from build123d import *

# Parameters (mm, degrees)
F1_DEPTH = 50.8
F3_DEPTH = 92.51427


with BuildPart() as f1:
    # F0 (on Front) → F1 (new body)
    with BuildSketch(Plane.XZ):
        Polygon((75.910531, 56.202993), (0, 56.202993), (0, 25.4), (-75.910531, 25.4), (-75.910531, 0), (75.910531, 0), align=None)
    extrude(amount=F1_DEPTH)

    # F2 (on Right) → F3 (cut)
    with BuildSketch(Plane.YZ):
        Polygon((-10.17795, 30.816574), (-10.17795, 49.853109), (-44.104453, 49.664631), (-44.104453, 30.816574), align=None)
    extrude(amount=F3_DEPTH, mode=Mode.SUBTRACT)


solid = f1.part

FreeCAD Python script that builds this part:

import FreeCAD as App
import Part
import Sketcher
Q = App.Units.Quantity


def add_polygon(sketch, points):
    """Adds a closed chain of lines whose ends are joined by coincident constraints."""
    first, n = sketch.GeometryCount, len(points)
    for a, b in zip(points, points[1:] + points[:1]):
        sketch.addGeometry(Part.LineSegment(App.Vector(*a, 0), App.Vector(*b, 0)), False)
    for i in range(n):
        sketch.addConstraint(Sketcher.Constraint("Coincident", first + i, 2, first + (i + 1) % n, 1))

doc = App.newDocument("Part")
body = doc.addObject("PartDesign::Body", "Body")

sketch1 = body.newObject("Sketcher::SketchObject", "Sketch")
sketch1.AttachmentSupport = (doc.getObject("XZ_Plane"), [""])
sketch1.MapMode = "FlatFace"
add_polygon(sketch1, [(76, 56), (0, 56), (0, 25), (-76, 25), (-76, 0), (76, 0)])
sketch1.addConstraint([
    Sketcher.Constraint("Horizontal", 0),
    Sketcher.Constraint("Vertical", 1),
    Sketcher.Constraint("Horizontal", 2),
    Sketcher.Constraint("Vertical", 3),
    Sketcher.Constraint("Horizontal", 4),
    Sketcher.Constraint("Vertical", 5),
    Sketcher.Constraint("Symmetric", 3, 2, 4, 2, -1, 1),
    Sketcher.Constraint("PointOnObject", 0, 2, -2),
    Sketcher.Constraint("DistanceY", 3, 2, 3, 1, Q("1 in")),
    Sketcher.Constraint("DistanceX", 0, 2, 0, 1, 75.910531),
    Sketcher.Constraint("DistanceY", 1, 2, 1, 1, 30.802993),
])
pad1 = body.newObject("PartDesign::Pad", "Pad")
pad1.Profile = sketch1
pad1.Length = Q("2 in")

sketch2 = body.newObject("Sketcher::SketchObject", "Sketch001")
sketch2.AttachmentSupport = (doc.getObject("YZ_Plane"), [""])
sketch2.MapMode = "FlatFace"
add_polygon(sketch2, [(-10, 31), (-10, 50), (-44, 50), (-44, 31)])
sketch2.addConstraint([
    Sketcher.Constraint("Vertical", 0),
    Sketcher.Constraint("Vertical", 2),
    Sketcher.Constraint("Horizontal", 3),
    Sketcher.Constraint("DistanceX", 3, 1, 3, 2, 33.926503),
    Sketcher.Constraint("DistanceY", 0, 1, 0, 2, 19.036535),
    Sketcher.Constraint("DistanceY", 2, 2, 2, 1, 18.848057),
    Sketcher.Constraint("DistanceX", 0, 2, -1, 1, 10.17795),
    Sketcher.Constraint("DistanceY", -1, 1, 0, 2, 49.853109),
])
pocket1 = body.newObject("PartDesign::Pocket", "Pocket")
pocket1.Profile = sketch2
pocket1.Length = 92.51427
pocket1.Reversed = True

doc.recompute()
